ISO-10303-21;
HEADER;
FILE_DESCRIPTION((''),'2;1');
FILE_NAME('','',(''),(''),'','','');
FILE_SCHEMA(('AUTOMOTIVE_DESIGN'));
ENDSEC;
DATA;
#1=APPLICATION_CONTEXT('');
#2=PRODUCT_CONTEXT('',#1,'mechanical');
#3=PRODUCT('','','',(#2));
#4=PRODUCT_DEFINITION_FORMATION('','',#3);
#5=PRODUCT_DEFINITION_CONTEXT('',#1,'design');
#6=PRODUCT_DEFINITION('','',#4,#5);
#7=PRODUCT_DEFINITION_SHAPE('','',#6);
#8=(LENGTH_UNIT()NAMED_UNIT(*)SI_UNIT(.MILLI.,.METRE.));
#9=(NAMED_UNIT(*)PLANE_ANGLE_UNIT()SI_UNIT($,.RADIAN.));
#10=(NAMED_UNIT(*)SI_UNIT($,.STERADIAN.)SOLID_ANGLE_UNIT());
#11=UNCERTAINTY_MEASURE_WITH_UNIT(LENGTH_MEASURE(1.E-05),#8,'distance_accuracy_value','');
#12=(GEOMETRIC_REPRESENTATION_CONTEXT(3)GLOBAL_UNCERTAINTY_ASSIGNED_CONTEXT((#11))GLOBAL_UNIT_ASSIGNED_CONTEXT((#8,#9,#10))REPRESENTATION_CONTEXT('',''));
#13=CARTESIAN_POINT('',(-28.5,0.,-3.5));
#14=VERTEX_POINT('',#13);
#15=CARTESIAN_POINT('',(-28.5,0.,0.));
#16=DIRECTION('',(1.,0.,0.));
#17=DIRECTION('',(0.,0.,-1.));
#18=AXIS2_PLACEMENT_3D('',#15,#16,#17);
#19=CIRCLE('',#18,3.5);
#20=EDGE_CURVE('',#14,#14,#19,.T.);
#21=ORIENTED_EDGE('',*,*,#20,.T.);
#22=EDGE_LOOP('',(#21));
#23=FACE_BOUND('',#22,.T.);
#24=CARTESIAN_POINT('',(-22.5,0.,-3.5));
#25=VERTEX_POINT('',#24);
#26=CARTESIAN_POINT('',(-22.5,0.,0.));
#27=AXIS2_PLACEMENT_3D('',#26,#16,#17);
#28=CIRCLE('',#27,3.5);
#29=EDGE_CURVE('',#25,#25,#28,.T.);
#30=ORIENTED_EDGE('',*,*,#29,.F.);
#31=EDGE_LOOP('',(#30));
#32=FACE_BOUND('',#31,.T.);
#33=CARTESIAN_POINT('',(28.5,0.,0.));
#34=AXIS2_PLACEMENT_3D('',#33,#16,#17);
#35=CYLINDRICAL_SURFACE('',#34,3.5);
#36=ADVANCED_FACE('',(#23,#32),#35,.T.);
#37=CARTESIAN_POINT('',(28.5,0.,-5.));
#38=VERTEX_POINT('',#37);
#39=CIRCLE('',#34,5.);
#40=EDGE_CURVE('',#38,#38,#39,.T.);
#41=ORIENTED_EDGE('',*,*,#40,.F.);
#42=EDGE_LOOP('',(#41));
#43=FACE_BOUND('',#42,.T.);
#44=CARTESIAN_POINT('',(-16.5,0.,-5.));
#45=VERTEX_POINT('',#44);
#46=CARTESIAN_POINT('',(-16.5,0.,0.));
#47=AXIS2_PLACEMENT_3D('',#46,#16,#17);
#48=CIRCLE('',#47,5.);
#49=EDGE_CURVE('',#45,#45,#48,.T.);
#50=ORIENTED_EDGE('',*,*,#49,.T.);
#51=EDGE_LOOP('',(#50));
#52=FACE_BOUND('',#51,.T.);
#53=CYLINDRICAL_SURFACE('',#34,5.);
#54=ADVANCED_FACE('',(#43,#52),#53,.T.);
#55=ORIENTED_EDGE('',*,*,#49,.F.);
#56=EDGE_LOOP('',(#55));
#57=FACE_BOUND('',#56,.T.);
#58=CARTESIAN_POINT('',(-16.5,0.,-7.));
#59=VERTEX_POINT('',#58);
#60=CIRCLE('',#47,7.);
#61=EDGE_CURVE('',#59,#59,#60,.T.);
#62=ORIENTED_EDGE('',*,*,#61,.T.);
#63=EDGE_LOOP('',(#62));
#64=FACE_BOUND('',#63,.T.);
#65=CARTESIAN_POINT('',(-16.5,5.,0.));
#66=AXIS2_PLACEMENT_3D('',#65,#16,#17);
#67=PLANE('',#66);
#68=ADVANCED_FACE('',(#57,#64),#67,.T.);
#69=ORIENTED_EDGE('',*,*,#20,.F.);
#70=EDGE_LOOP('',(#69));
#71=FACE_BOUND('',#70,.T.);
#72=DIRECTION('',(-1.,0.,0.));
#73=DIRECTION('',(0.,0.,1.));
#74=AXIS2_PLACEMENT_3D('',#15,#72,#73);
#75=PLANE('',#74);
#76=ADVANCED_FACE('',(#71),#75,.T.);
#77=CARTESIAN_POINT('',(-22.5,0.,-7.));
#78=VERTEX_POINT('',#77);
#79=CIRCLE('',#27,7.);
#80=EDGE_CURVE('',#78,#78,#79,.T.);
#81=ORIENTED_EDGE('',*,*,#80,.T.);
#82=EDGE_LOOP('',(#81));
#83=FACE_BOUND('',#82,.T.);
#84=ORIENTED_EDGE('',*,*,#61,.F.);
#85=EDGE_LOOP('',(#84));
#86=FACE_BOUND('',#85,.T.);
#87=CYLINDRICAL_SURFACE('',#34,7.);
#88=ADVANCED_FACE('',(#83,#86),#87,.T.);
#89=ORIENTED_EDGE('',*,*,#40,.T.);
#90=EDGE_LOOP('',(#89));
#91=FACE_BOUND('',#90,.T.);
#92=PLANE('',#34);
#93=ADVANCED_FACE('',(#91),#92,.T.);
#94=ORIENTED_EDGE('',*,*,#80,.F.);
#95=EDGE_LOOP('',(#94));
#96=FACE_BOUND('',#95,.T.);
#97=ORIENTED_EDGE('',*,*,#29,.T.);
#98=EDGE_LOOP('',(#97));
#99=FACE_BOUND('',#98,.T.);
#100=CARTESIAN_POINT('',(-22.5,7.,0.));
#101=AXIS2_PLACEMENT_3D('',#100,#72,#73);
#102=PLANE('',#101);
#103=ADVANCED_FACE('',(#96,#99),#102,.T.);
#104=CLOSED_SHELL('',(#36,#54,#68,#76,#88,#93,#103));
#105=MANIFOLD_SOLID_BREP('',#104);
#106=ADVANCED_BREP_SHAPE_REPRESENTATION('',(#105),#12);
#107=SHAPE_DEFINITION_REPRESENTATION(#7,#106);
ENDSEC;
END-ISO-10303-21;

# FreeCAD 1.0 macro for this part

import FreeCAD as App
import Part
import Sketcher
from FreeCAD import Vector

doc = App.newDocument("Part")
body = doc.addObject("PartDesign::Body", "Body")

# Sketch on XY plane
sketch1 = body.newObject("Sketcher::SketchObject", "Sketch")
sketch1.AttachmentSupport = (doc.getObject("XY_Plane"), [""])
sketch1.MapMode = "FlatFace"
sketch1.addGeometry([
    Part.LineSegment(Vector(-28.5, 0, 0), Vector(28.5, 0, 0)),  # 0
    Part.LineSegment(Vector(28.5, 0, 0), Vector(28.5, 5, 0)),  # 1
    Part.LineSegment(Vector(28.5, 5, 0), Vector(-16.5, 5, 0)),  # 2
    Part.LineSegment(Vector(-16.5, 5, 0), Vector(-16.5, 7, 0)),  # 3
    Part.LineSegment(Vector(-16.5, 7, 0), Vector(-22.5, 7, 0)),  # 4
    Part.LineSegment(Vector(-22.5, 7, 0), Vector(-22.5, 3.5, 0)),  # 5
    Part.LineSegment(Vector(-22.5, 3.5, 0), Vector(-28.5, 3.5, 0)),  # 6
    Part.LineSegment(Vector(-28.5, 3.5, 0), Vector(-28.5, 0, 0)),  # 7
], False)
sketch1.addConstraint([
    Sketcher.Constraint("Coincident", 0, 2, 1, 1),
    Sketcher.Constraint("Coincident", 1, 2, 2, 1),
    Sketcher.Constraint("Coincident", 2, 2, 3, 1),
    Sketcher.Constraint("Coincident", 3, 2, 4, 1),
    Sketcher.Constraint("Coincident", 4, 2, 5, 1),
    Sketcher.Constraint("Coincident", 5, 2, 6, 1),
    Sketcher.Constraint("Coincident", 6, 2, 7, 1),
    Sketcher.Constraint("Coincident", 7, 2, 0, 1),
    Sketcher.Constraint("Horizontal", 0),
    Sketcher.Constraint("Vertical", 1),
    Sketcher.Constraint("Horizontal", 2),
    Sketcher.Constraint("Vertical", 3),
    Sketcher.Constraint("Horizontal", 4),
    Sketcher.Constraint("Vertical", 5),
    Sketcher.Constraint("Horizontal", 6),
    Sketcher.Constraint("Vertical", 7),
    Sketcher.Constraint("Symmetric", 0, 2, 7, 2, -1, 1),
    Sketcher.Constraint("Equal", 4, 6),
    Sketcher.Constraint("Equal", 5, 7),
    Sketcher.Constraint("DistanceX", 0, 1, 0, 2, 57.0),
    Sketcher.Constraint("DistanceX", 2, 2, 2, 1, 45.0),
    Sketcher.Constraint("DistanceY", 1, 1, 1, 2, 5.0),
    Sketcher.Constraint("DistanceY", 3, 1, 3, 2, 2.0),
])
revolution = body.newObject("PartDesign::Revolution", "Revolution")
revolution.Profile = sketch1
revolution.ReferenceAxis = (sketch1, ["H_Axis"])
revolution.Angle = 360

doc.recompute()
